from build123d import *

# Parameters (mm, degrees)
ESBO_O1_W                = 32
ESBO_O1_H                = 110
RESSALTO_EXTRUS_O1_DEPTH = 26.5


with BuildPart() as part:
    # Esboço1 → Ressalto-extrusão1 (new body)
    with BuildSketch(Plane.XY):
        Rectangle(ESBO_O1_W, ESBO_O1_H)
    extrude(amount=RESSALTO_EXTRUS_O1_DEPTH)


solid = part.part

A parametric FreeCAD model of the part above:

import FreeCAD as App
import Part
import Sketcher

V = App.Vector
Q = App.Units.Quantity


def add_polygon(sketch, points):
    """Adds a closed chain of lines whose ends are joined by coincident constraints."""
    first, n = sketch.GeometryCount, len(points)
    for a, b in zip(points, points[1:] + points[:1]):
        sketch.addGeometry(Part.LineSegment(App.Vector(*a, 0), App.Vector(*b, 0)), False)
    for i in range(n):
        sketch.addConstraint(Sketcher.Constraint("Coincident", first + i, 2, first + (i + 1) % n, 1))

doc = App.newDocument("Part")
body = doc.addObject("PartDesign::Body", "Body")

# Sketch on XY plane
sketch1 = body.newObject("Sketcher::SketchObject", "Sketch")
sketch1.AttachmentSupport = (doc.getObject("XY_Plane"), [""])
sketch1.MapMode = "FlatFace"
add_polygon(sketch1, [(-16, 55), (-16, -55), (16, -55), (16, 55)])  # lines 0-3
sketch1.addConstraint([
    Sketcher.Constraint("Vertical", 0),
    Sketcher.Constraint("Horizontal", 1),
    Sketcher.Constraint("Vertical", 2),
    Sketcher.Constraint("Horizontal", 3),
    Sketcher.Constraint("Symmetric", 0, 2, 2, 2, -1, 1),
    Sketcher.Constraint("DistanceX", 1, 1, 1, 2, Q("32 mm")),
    Sketcher.Constraint("DistanceY", 0, 2, 0, 1, Q("110 mm")),
])
pad1 = body.newObject("PartDesign::Pad", "Pad")
pad1.Profile = sketch1
pad1.Length = 26.5

doc.recompute()
